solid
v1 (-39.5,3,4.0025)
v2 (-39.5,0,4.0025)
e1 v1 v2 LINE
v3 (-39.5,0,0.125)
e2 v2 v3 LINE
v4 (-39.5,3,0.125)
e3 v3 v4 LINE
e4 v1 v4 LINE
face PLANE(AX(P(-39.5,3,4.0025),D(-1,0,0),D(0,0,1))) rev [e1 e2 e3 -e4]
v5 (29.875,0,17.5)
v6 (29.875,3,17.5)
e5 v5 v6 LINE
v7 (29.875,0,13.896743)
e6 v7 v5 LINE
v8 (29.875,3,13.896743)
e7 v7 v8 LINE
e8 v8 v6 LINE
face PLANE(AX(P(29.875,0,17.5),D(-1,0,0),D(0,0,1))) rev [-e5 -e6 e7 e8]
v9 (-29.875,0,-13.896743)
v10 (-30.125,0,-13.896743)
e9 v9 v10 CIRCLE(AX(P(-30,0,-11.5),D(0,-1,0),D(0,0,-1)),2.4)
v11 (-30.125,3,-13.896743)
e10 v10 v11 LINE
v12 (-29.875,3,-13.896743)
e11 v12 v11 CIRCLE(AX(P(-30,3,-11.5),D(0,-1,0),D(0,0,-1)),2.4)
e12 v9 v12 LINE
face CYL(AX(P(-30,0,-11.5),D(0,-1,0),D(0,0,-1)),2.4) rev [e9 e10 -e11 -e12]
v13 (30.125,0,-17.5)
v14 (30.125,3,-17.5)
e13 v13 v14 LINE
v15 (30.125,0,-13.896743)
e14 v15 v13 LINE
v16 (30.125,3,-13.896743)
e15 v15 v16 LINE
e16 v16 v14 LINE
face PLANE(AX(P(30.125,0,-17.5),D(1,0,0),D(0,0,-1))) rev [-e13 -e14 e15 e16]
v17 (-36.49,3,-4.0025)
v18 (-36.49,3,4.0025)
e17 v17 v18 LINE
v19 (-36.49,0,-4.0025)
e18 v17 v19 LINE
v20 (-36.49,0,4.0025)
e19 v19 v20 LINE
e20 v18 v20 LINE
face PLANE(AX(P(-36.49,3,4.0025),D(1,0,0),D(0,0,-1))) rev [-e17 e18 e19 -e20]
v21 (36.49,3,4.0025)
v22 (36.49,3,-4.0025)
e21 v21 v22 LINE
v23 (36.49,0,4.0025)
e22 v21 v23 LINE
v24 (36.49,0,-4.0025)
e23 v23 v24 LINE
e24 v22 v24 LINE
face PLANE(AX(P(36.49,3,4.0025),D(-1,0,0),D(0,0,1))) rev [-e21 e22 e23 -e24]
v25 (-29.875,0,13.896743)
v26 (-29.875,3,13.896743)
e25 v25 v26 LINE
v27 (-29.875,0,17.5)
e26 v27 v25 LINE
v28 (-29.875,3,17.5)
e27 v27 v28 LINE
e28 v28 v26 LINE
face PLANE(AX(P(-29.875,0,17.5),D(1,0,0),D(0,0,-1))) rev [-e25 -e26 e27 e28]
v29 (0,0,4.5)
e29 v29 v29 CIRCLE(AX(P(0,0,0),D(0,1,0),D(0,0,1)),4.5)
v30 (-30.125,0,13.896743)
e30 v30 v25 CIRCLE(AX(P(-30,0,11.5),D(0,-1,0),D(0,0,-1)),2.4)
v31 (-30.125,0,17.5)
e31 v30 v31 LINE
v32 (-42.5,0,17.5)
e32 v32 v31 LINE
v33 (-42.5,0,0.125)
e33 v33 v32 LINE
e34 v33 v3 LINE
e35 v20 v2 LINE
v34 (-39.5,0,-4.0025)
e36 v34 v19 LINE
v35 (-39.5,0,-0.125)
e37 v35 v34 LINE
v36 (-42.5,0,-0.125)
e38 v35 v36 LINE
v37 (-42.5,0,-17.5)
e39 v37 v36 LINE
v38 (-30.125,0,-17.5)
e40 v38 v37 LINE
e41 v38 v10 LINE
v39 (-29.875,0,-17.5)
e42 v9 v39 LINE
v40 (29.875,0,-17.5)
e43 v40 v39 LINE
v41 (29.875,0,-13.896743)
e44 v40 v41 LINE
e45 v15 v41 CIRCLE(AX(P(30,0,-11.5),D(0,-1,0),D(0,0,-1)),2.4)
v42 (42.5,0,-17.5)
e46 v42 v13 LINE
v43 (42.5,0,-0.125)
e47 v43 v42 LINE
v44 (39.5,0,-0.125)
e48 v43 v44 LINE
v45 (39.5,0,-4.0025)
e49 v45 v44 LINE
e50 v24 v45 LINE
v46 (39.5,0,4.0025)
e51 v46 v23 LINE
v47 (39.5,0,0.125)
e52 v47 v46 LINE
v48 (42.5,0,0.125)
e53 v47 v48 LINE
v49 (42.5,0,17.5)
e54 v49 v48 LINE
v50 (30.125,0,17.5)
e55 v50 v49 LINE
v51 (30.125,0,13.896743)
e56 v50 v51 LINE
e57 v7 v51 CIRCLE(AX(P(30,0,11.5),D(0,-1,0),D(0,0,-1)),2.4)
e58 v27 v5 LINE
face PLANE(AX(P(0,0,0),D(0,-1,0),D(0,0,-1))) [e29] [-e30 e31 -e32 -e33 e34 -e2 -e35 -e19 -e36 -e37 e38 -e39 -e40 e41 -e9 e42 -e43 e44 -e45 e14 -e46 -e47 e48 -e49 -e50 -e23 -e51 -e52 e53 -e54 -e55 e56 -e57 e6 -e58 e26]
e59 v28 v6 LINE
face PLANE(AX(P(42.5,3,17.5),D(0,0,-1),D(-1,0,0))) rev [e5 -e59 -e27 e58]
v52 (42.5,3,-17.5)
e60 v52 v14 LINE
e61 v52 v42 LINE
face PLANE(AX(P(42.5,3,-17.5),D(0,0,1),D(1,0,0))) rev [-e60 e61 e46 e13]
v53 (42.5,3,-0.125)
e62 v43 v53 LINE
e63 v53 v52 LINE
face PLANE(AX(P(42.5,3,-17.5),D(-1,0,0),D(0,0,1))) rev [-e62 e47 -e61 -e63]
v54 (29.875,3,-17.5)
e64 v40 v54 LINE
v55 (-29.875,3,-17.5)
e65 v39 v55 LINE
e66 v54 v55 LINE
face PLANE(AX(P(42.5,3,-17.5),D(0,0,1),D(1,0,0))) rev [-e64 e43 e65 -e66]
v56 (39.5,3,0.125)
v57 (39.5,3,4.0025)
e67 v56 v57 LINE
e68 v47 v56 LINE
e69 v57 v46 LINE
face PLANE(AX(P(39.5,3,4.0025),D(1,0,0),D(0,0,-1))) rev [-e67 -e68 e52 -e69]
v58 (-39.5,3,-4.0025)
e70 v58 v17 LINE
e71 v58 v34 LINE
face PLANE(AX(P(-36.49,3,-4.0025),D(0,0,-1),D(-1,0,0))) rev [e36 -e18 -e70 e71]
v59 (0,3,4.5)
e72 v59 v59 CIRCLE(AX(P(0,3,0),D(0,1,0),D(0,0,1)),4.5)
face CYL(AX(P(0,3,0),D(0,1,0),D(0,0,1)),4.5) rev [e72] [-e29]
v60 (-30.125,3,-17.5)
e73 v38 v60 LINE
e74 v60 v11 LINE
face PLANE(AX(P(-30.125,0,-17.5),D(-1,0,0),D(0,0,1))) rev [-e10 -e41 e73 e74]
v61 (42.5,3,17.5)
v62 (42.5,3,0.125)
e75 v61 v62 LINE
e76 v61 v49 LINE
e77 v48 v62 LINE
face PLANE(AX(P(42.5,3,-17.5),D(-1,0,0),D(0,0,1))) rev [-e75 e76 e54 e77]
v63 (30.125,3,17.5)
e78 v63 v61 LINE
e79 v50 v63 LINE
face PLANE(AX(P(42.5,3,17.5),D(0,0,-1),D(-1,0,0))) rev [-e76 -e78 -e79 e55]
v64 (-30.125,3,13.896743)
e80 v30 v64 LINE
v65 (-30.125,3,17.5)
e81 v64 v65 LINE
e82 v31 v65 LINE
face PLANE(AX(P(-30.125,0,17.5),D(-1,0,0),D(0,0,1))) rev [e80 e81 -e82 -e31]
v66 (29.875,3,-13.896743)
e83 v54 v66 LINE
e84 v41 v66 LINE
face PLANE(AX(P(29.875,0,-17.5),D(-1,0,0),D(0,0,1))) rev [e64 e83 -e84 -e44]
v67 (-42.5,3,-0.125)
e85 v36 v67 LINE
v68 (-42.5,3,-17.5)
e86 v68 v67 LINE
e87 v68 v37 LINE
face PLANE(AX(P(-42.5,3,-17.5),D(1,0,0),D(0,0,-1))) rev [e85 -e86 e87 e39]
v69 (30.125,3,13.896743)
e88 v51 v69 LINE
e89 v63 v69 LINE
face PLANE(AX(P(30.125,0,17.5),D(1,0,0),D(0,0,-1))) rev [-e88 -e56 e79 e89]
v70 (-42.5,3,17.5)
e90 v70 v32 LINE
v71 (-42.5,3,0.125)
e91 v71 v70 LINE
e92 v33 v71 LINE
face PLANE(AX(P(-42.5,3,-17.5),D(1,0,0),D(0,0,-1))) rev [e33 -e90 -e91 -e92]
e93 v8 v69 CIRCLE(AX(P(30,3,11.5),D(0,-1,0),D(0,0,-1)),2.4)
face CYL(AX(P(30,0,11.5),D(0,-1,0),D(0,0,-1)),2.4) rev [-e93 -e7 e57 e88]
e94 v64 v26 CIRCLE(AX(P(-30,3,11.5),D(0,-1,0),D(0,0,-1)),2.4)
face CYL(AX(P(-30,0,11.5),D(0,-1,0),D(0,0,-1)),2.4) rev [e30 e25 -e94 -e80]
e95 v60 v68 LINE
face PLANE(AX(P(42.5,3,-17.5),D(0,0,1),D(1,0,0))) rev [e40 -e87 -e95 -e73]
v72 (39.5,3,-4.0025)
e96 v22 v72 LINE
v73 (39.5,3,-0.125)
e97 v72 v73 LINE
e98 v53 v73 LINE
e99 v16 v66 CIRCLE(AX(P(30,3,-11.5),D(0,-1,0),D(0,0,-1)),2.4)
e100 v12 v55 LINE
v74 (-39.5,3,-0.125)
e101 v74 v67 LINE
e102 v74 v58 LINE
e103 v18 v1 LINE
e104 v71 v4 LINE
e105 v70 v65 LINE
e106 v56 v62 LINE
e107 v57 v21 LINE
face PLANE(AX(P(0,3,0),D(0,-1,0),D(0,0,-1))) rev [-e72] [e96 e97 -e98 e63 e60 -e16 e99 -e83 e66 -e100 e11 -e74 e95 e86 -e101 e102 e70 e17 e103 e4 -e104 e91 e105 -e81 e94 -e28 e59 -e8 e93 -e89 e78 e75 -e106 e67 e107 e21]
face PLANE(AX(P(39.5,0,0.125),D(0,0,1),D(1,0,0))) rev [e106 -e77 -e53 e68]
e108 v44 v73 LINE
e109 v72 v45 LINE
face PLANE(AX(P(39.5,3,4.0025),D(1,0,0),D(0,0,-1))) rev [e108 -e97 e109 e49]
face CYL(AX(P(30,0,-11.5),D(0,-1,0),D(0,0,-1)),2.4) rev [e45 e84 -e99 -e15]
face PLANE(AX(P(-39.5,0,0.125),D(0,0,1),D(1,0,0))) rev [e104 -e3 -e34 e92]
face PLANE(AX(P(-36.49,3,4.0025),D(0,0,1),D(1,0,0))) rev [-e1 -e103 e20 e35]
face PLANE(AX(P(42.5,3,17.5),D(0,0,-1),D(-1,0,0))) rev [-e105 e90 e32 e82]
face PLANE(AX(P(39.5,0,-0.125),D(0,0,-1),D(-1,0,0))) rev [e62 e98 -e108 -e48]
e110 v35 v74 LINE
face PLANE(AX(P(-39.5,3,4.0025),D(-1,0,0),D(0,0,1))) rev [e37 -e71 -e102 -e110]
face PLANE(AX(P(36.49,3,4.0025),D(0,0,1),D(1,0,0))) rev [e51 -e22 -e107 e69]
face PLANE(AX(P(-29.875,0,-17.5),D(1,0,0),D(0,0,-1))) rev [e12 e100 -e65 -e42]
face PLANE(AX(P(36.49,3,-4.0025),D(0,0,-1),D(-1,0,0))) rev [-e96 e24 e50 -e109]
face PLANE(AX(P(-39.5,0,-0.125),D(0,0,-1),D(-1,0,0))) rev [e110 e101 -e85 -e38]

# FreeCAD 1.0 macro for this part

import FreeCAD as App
import Part
import Sketcher
from FreeCAD import Vector
Q = App.Units.Quantity

doc = App.newDocument("Part")
body = doc.addObject("PartDesign::Body", "Body")

sketch1 = doc.addObject("Sketcher::SketchObject", "Sketch")
body.addObject(sketch1)
sketch1.AttachmentSupport = (doc.XZ_Plane, [""])
sketch1.MapMode = "FlatFace"
sketch1.addGeometry([
    Part.LineSegment(Vector(-42, -18, 0), Vector(-42, 18, 0)),
    Part.LineSegment(Vector(-42, 18, 0), Vector(42, 18, 0)),
    Part.LineSegment(Vector(42, 18, 0), Vector(42, -18, 0)),
    Part.LineSegment(Vector(42, -18, 0), Vector(-42, -18, 0)),
], False)
sketch1.addConstraint([
    Sketcher.Constraint("Coincident", 0, 2, 1, 1),
    Sketcher.Constraint("Coincident", 1, 2, 2, 1),
    Sketcher.Constraint("Coincident", 2, 2, 3, 1),
    Sketcher.Constraint("Coincident", 3, 2, 0, 1),
    Sketcher.Constraint("Vertical", 0),
    Sketcher.Constraint("Horizontal", 1),
    Sketcher.Constraint("Vertical", 2),
    Sketcher.Constraint("Horizontal", 3),
    Sketcher.Constraint("Symmetric", 0, 2, 2, 2, -1, 1),
    Sketcher.Constraint("DistanceX", 1, 1, 1, 2, Q("85 mm")),
    Sketcher.Constraint("DistanceY", 0, 1, 0, 2, Q("35 mm")),
])
pad1 = doc.addObject("PartDesign::Pad", "Pad")
body.addObject(pad1)
pad1.Profile = sketch1
pad1.Length = 3
pad1.Reversed = True

sketch2 = doc.addObject("Sketcher::SketchObject", "Sketch001")
body.addObject(sketch2)
sketch2.AttachmentSupport = (doc.XZ_Plane, [""])
sketch2.MapMode = "FlatFace"
sketch2.addGeometry([
    Part.LineSegment(Vector(-39.5, 4, 0), Vector(-39.5, -4, 0)),
    Part.LineSegment(Vector(-39.5, -4, 0), Vector(-36.5, -4, 0)),
    Part.LineSegment(Vector(-36.5, -4, 0), Vector(-36.5, 4, 0)),
    Part.LineSegment(Vector(-36.5, 4, 0), Vector(-39.5, 4, 0)),
    Part.LineSegment(Vector(36.5, 4, 0), Vector(36.5, -4, 0)),
    Part.LineSegment(Vector(36.5, -4, 0), Vector(39.5, -4, 0)),
    Part.LineSegment(Vector(39.5, -4, 0), Vector(39.5, 4, 0)),
    Part.LineSegment(Vector(39.5, 4, 0), Vector(36.5, 4, 0)),
], False)
sketch2.addConstraint([
    Sketcher.Constraint("Coincident", 0, 2, 1, 1),
    Sketcher.Constraint("Coincident", 1, 2, 2, 1),
    Sketcher.Constraint("Coincident", 2, 2, 3, 1),
    Sketcher.Constraint("Coincident", 3, 2, 0, 1),
    Sketcher.Constraint("Coincident", 4, 2, 5, 1),
    Sketcher.Constraint("Coincident", 5, 2, 6, 1),
    Sketcher.Constraint("Coincident", 6, 2, 7, 1),
    Sketcher.Constraint("Coincident", 7, 2, 4, 1),
    Sketcher.Constraint("Vertical", 0),
    Sketcher.Constraint("Horizontal", 1),
    Sketcher.Constraint("Vertical", 2),
    Sketcher.Constraint("Horizontal", 3),
    Sketcher.Constraint("Vertical", 4),
    Sketcher.Constraint("Horizontal", 5),
    Sketcher.Constraint("Vertical", 6),
    Sketcher.Constraint("Horizontal", 7),
    Sketcher.Constraint("Symmetric", 2, 2, 4, 2, -1, 1),
    Sketcher.Constraint("Symmetric", 0, 2, 6, 2, -1, 1),
    Sketcher.Constraint("Horizontal", 1, 2, 4, 2),
    Sketcher.Constraint("DistanceX", 0, 2, 5, 2, Q("79 mm")),
    Sketcher.Constraint("DistanceX", 1, 1, 1, 2, Q("3.01 mm")),
    Sketcher.Constraint("DistanceY", 0, 2, 0, 1, Q("8.005 mm")),
])
pocket1 = doc.addObject("PartDesign::Pocket", "Pocket")
body.addObject(pocket1)
pocket1.Profile = sketch2
pocket1.Type = "ThroughAll"

sketch3 = doc.addObject("Sketcher::SketchObject", "Sketch002")
body.addObject(sketch3)
sketch3.AttachmentSupport = (doc.XZ_Plane, [""])
sketch3.MapMode = "FlatFace"
sketch3.addGeometry([
    Part.Circle(Vector(-30, 11.5, 0), Vector(0, 0, 1), 2.4),
    Part.Circle(Vector(-30, -11.5, 0), Vector(0, 0, 1), 2.4),
    Part.Circle(Vector(30, -11.5, 0), Vector(0, 0, 1), 2.4),
    Part.Circle(Vector(30, 11.5, 0), Vector(0, 0, 1), 2.4),
], False)
sketch3.addConstraint([
    Sketcher.Constraint("Equal", 0, 1),
    Sketcher.Constraint("Equal", 1, 2),
    Sketcher.Constraint("Equal", 2, 3),
    Sketcher.Constraint("Symmetric", 0, 3, 2, 3, -1, 1),
    Sketcher.Constraint("Symmetric", 1, 3, 3, 3, -1, 1),
    Sketcher.Constraint("Symmetric", 1, 3, 2, 3, -2),
    Sketcher.Constraint("Diameter", 0, Q("4.8 mm")),
    Sketcher.Constraint("DistanceX", 0, 3, -1, 1, Q("30 mm")),
    Sketcher.Constraint("DistanceY", 1, 3, 0, 3, Q("23 mm")),
])
doc.recompute()
hole = doc.addObject("PartDesign::Hole", "Hole")
body.addObject(hole)
hole.Profile = sketch3
hole.ThreadType = "None"
hole.Diameter = 4.8
hole.DepthType = "ThroughAll"

sketch4 = doc.addObject("Sketcher::SketchObject", "Sketch003")
body.addObject(sketch4)
sketch4.AttachmentSupport = (doc.XZ_Plane, [""])
sketch4.MapMode = "FlatFace"
sketch4.AttachmentOffset = App.Placement(Vector(0, 0, -3), App.Rotation())
sketch4.addGeometry(Part.Circle(Vector(0, 0, 0), Vector(0, 0, 1), 4.5), False)
sketch4.addConstraint([
    Sketcher.Constraint("Coincident", 0, 3, -1, 1),
    Sketcher.Constraint("Diameter", 0, Q("9 mm")),
])
doc.recompute()
hole2 = doc.addObject("PartDesign::Hole", "Hole001")
body.addObject(hole2)
hole2.Profile = sketch4
hole2.ThreadType = "None"
hole2.Diameter = 9
hole2.DepthType = "ThroughAll"
hole2.Reversed = True

sketch5 = doc.addObject("Sketcher::SketchObject", "Sketch004")
body.addObject(sketch5)
sketch5.AttachmentSupport = (doc.XZ_Plane, [""])
sketch5.MapMode = "FlatFace"
sketch5.AttachmentOffset = App.Placement(Vector(0, 0, -3), App.Rotation())
sketch5.addGeometry([
    Part.LineSegment(Vector(-30.12, -17.5, 0), Vector(-30.12, -13.9, 0)),
    Part.LineSegment(Vector(-30.12, -13.9, 0), Vector(-29.88, -13.9, 0)),
    Part.LineSegment(Vector(-29.88, -13.9, 0), Vector(-29.88, -17.5, 0)),
    Part.LineSegment(Vector(-29.88, -17.5, 0), Vector(-30.12, -17.5, 0)),
    Part.LineSegment(Vector(-42.5, -0.12, 0), Vector(-42.5, 0.12, 0)),
    Part.LineSegment(Vector(-42.5, 0.12, 0), Vector(-39.5, 0.12, 0)),
    Part.LineSegment(Vector(-39.5, 0.12, 0), Vector(-39.5, -0.12, 0)),
    Part.LineSegment(Vector(-39.5, -0.12, 0), Vector(-42.5, -0.12, 0)),
    Part.LineSegment(Vector(-30.12, 13.9, 0), Vector(-30.12, 17.5, 0)),
    Part.LineSegment(Vector(-30.12, 17.5, 0), Vector(-29.88, 17.5, 0)),
    Part.LineSegment(Vector(-29.88, 17.5, 0), Vector(-29.88, 13.9, 0)),
    Part.LineSegment(Vector(-29.88, 13.9, 0), Vector(-30.12, 13.9, 0)),
    Part.LineSegment(Vector(29.88, 13.9, 0), Vector(29.88, 17.5, 0)),
    Part.LineSegment(Vector(29.88, 17.5, 0), Vector(30.12, 17.5, 0)),
    Part.LineSegment(Vector(30.12, 17.5, 0), Vector(30.12, 13.9, 0)),
    Part.LineSegment(Vector(30.12, 13.9, 0), Vector(29.88, 13.9, 0)),
    Part.LineSegment(Vector(39.5, -0.12, 0), Vector(39.5, 0.12, 0)),
    Part.LineSegment(Vector(39.5, 0.12, 0), Vector(42.5, 0.12, 0)),
    Part.LineSegment(Vector(42.5, 0.12, 0), Vector(42.5, -0.12, 0)),
    Part.LineSegment(Vector(42.5, -0.12, 0), Vector(39.5, -0.12, 0)),
    Part.LineSegment(Vector(29.88, -17.5, 0), Vector(29.88, -13.9, 0)),
    Part.LineSegment(Vector(29.88, -13.9, 0), Vector(30.12, -13.9, 0)),
    Part.LineSegment(Vector(30.12, -13.9, 0), Vector(30.12, -17.5, 0)),
    Part.LineSegment(Vector(30.12, -17.5, 0), Vector(29.88, -17.5, 0)),
], False)
sketch5.addConstraint([
    Sketcher.Constraint("Coincident", 0, 2, 1, 1),
    Sketcher.Constraint("Coincident", 1, 2, 2, 1),
    Sketcher.Constraint("Coincident", 2, 2, 3, 1),
    Sketcher.Constraint("Coincident", 3, 2, 0, 1),
    Sketcher.Constraint("Coincident", 4, 2, 5, 1),
    Sketcher.Constraint("Coincident", 5, 2, 6, 1),
    Sketcher.Constraint("Coincident", 6, 2, 7, 1),
    Sketcher.Constraint("Coincident", 7, 2, 4, 1),
    Sketcher.Constraint("Coincident", 8, 2, 9, 1),
    Sketcher.Constraint("Coincident", 9, 2, 10, 1),
    Sketcher.Constraint("Coincident", 10, 2, 11, 1),
    Sketcher.Constraint("Coincident", 11, 2, 8, 1),
    Sketcher.Constraint("Coincident", 12, 2, 13, 1),
    Sketcher.Constraint("Coincident", 13, 2, 14, 1),
    Sketcher.Constraint("Coincident", 14, 2, 15, 1),
    Sketcher.Constraint("Coincident", 15, 2, 12, 1),
    Sketcher.Constraint("Coincident", 16, 2, 17, 1),
    Sketcher.Constraint("Coincident", 17, 2, 18, 1),
    Sketcher.Constraint("Coincident", 18, 2, 19, 1),
    Sketcher.Constraint("Coincident", 19, 2, 16, 1),
    Sketcher.Constraint("Coincident", 20, 2, 21, 1),
    Sketcher.Constraint("Coincident", 21, 2, 22, 1),
    Sketcher.Constraint("Coincident", 22, 2, 23, 1),
    Sketcher.Constraint("Coincident", 23, 2, 20, 1),
    Sketcher.Constraint("Vertical", 0),
    Sketcher.Constraint("Horizontal", 1),
    Sketcher.Constraint("Vertical", 2),
    Sketcher.Constraint("Horizontal", 3),
    Sketcher.Constraint("Vertical", 4),
    Sketcher.Constraint("Horizontal", 5),
    Sketcher.Constraint("Vertical", 6),
    Sketcher.Constraint("Horizontal", 7),
    Sketcher.Constraint("Vertical", 8),
    Sketcher.Constraint("Horizontal", 9),
    Sketcher.Constraint("Vertical", 10),
    Sketcher.Constraint("Horizontal", 11),
    Sketcher.Constraint("Vertical", 12),
    Sketcher.Constraint("Horizontal", 13),
    Sketcher.Constraint("Vertical", 14),
    Sketcher.Constraint("Horizontal", 15),
    Sketcher.Constraint("Vertical", 16),
    Sketcher.Constraint("Horizontal", 17),
    Sketcher.Constraint("Vertical", 18),
    Sketcher.Constraint("Horizontal", 19),
    Sketcher.Constraint("Vertical", 20),
    Sketcher.Constraint("Horizontal", 21),
    Sketcher.Constraint("Vertical", 22),
    Sketcher.Constraint("Horizontal", 23),
    Sketcher.Constraint("Symmetric", 2, 2, 12, 2, -1, 1),
    Sketcher.Constraint("Symmetric", 0, 2, 14, 2, -1, 1),
    Sketcher.Constraint("Symmetric", 6, 2, 16, 2, -1, 1),
    Sketcher.Constraint("Symmetric", 4, 2, 18, 2, -1, 1),
    Sketcher.Constraint("Symmetric", 10, 2, 20, 2, -1, 1),
    Sketcher.Constraint("Symmetric", 8, 2, 22, 2, -1, 1),
    Sketcher.Constraint("Symmetric", 9, 2, 12, 2, -2),
    Sketcher.Constraint("Symmetric", 11, 2, 14, 2, -2),
    Sketcher.Constraint("Horizontal", 5, 2, 16, 2),
    Sketcher.Constraint("Equal", 23, 4),
    Sketcher.Constraint("DistanceX", 5, 1, 5, 2, Q("3 mm")),
    Sketcher.Constraint("DistanceX", 8, 2, 12, 2, Q("60 mm")),
    Sketcher.Constraint("DistanceX", 1, 1, 1, 2, Q("0.25 mm")),
    Sketcher.Constraint("DistanceY", 2, 2, -1, 1, Q("17.5 mm")),
    Sketcher.Constraint("DistanceX", 4, 2, -1, 1, Q("42.5 mm")),
    Sketcher.Constraint("DistanceY", 0, 1, 0, 2, Q("3.603257 mm")),
])
pocket2 = doc.addObject("PartDesign::Pocket", "Pocket001")
body.addObject(pocket2)
pocket2.Profile = sketch5
pocket2.Type = "ThroughAll"
pocket2.Reversed = True

doc.recompute()
